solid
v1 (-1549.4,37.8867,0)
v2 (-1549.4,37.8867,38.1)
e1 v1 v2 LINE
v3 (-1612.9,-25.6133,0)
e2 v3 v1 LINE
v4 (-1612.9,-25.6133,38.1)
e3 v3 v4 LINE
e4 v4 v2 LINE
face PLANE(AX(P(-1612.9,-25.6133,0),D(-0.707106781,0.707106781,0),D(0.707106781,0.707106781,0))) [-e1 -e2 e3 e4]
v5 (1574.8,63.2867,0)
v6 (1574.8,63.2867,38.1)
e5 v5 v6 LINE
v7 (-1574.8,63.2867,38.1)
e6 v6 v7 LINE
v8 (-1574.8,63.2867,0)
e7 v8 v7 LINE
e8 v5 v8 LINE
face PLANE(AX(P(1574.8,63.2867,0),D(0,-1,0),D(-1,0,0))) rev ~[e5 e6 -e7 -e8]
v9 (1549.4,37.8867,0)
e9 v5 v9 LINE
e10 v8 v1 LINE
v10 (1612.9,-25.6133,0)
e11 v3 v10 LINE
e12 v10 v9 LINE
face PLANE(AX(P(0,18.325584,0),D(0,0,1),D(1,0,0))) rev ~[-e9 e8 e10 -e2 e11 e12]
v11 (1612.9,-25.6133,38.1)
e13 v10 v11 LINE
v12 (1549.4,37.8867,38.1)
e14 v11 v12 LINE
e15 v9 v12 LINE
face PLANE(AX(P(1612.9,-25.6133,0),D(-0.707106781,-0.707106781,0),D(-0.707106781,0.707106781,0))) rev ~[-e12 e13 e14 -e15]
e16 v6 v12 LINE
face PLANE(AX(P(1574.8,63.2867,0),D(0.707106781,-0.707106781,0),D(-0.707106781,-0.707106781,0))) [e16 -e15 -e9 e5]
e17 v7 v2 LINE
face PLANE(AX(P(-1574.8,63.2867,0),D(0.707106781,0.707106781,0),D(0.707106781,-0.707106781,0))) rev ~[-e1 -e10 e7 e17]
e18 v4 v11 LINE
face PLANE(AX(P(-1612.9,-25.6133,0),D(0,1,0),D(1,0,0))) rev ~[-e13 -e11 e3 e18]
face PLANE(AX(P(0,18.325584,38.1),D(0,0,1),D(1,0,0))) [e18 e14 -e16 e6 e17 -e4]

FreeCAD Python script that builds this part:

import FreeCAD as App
import Part
import Sketcher
Q = App.Units.Quantity

doc = App.newDocument("Part")
body = doc.addObject("PartDesign::Body", "Body")

# Sketch on XY plane
sketch1 = body.newObject("Sketcher::SketchObject", "Sketch")
sketch1.AttachmentSupport = (doc.getObject("XY_Plane"), [""])
sketch1.MapMode = "FlatFace"
sketch1.addGeometry([
    Part.LineSegment(App.Vector(-1549.4, 37.8867, 0), App.Vector(-1612.9, -25.6133, 0)),  # 0
    Part.LineSegment(App.Vector(-1612.9, -25.6133, 0), App.Vector(1612.9, -25.6133, 0)),  # 1
    Part.LineSegment(App.Vector(1612.9, -25.6133, 0), App.Vector(1549.4, 37.8867, 0)),  # 2
    Part.LineSegment(App.Vector(1549.4, 37.8867, 0), App.Vector(1574.8, 63.2867, 0)),  # 3
    Part.LineSegment(App.Vector(1574.8, 63.2867, 0), App.Vector(-1574.8, 63.2867, 0)),  # 4
    Part.LineSegment(App.Vector(-1574.8, 63.2867, 0), App.Vector(-1549.4, 37.8867, 0)),  # 5
], False)
sketch1.addConstraint([
    Sketcher.Constraint("Coincident", 0, 2, 1, 1),
    Sketcher.Constraint("Coincident", 1, 2, 2, 1),
    Sketcher.Constraint("Coincident", 2, 2, 3, 1),
    Sketcher.Constraint("Coincident", 3, 2, 4, 1),
    Sketcher.Constraint("Coincident", 4, 2, 5, 1),
    Sketcher.Constraint("Coincident", 5, 2, 0, 1),
    Sketcher.Constraint("Horizontal", 1),
    Sketcher.Constraint("Horizontal", 4),
    Sketcher.Constraint("Symmetric", 2, 2, 5, 2, -2),
    Sketcher.Constraint("Perpendicular", 0, 2),
    Sketcher.Constraint("Perpendicular", 2, 3),
    Sketcher.Constraint("Perpendicular", 3, 5),
    Sketcher.Constraint("Equal", 0, 2),
    Sketcher.Constraint("DistanceX", -1, 1, 3, 2, Q("62 in")),
    Sketcher.Constraint("DistanceX", 0, 2, -1, 1, Q("63.5 in")),
    Sketcher.Constraint("DistanceX", -1, 1, 2, 2, Q("61 in")),
    Sketcher.Constraint("DistanceY", 0, 2, -1, 1, Q("1.0084 in")),
])
pad1 = body.newObject("PartDesign::Pad", "Pad")
pad1.Profile = sketch1
pad1.Length = Q("1.5 in")

doc.recompute()
